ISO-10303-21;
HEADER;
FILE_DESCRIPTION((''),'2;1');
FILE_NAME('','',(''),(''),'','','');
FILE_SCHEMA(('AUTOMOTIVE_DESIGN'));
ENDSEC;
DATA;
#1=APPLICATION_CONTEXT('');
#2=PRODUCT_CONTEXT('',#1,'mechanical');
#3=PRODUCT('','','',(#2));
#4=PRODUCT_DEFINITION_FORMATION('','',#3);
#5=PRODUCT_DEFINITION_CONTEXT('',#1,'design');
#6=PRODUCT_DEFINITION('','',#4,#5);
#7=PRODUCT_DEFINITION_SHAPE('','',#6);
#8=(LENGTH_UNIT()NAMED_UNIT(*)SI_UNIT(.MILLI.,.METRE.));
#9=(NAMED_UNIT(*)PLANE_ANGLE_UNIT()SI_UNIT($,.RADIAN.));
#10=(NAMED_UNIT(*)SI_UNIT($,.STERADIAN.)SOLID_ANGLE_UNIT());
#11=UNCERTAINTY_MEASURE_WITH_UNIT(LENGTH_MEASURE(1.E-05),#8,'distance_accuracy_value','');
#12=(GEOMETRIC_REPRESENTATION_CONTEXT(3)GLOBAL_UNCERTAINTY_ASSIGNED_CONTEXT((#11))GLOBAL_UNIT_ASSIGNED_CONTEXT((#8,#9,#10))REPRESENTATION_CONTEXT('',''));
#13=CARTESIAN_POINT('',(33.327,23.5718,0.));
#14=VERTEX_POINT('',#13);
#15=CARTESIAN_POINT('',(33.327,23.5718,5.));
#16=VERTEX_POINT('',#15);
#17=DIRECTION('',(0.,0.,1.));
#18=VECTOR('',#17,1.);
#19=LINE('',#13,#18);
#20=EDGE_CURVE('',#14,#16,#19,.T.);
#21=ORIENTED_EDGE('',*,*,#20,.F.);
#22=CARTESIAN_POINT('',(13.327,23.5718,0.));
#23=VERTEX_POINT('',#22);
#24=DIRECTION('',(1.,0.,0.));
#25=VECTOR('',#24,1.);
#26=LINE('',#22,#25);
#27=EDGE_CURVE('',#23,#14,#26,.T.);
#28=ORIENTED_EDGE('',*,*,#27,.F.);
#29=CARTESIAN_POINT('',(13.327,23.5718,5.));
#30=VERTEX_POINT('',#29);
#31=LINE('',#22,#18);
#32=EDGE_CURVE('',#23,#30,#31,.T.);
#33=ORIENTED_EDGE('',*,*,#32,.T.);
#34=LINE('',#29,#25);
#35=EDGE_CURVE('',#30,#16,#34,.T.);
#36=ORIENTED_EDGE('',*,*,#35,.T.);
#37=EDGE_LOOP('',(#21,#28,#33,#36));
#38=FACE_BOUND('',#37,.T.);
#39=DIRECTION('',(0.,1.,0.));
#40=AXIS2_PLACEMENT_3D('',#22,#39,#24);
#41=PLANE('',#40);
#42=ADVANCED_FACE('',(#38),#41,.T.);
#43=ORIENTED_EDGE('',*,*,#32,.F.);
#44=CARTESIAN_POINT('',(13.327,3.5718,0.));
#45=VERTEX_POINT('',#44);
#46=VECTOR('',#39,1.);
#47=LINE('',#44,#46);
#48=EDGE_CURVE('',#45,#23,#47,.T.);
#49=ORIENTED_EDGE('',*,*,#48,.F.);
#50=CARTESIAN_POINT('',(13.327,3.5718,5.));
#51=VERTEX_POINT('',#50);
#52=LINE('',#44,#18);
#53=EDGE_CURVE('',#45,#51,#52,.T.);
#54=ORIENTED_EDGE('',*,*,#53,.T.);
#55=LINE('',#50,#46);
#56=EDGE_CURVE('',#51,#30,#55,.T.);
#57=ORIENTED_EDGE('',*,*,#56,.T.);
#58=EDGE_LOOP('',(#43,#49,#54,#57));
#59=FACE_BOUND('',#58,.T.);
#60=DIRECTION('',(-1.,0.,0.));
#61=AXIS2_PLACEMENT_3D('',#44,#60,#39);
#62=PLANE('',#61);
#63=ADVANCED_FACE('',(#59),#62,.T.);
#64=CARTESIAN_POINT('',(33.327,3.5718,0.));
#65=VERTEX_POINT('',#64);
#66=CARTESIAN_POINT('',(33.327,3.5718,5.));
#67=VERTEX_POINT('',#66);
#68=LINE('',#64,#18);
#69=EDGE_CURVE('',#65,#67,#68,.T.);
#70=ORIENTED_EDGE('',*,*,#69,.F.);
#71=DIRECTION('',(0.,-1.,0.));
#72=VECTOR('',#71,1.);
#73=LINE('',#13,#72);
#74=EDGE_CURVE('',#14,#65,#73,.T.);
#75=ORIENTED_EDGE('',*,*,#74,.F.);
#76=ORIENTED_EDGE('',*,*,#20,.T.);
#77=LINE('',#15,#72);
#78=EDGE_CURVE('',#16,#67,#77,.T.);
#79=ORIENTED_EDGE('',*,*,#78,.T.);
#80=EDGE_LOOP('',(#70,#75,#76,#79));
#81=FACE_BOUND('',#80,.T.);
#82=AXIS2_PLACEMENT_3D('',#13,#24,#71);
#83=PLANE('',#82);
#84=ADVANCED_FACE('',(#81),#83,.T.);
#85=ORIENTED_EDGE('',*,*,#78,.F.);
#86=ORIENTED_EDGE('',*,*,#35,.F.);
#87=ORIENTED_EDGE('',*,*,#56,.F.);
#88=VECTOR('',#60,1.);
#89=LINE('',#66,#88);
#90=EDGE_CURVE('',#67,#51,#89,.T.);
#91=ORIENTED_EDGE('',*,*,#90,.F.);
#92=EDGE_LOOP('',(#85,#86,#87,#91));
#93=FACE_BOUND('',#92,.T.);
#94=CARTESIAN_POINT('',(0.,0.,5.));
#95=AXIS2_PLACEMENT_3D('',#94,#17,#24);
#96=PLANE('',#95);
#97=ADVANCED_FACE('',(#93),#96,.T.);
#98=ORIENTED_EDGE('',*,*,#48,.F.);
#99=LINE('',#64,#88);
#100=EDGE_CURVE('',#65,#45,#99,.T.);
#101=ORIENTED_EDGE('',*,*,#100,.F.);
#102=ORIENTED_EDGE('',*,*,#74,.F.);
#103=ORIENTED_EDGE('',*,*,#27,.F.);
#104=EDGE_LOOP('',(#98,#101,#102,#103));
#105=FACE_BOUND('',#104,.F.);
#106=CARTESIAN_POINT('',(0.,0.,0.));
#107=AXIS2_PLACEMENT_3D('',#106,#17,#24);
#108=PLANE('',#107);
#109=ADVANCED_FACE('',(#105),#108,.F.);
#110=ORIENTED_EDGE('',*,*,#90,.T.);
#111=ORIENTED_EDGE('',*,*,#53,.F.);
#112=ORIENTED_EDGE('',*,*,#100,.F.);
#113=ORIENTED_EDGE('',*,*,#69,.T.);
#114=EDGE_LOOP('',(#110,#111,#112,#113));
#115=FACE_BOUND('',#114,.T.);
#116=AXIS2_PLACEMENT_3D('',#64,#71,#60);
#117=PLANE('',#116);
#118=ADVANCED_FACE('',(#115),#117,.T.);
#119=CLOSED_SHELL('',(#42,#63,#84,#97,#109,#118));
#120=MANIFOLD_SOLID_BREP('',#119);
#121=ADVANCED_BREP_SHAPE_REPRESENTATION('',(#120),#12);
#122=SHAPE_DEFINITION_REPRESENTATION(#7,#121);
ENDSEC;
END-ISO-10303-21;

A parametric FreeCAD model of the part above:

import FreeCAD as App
import Part
import Sketcher
Q = App.Units.Quantity

doc = App.newDocument("Part")
body = doc.addObject("PartDesign::Body", "Body")

# Sketch on XY plane
sketch1 = body.newObject("Sketcher::SketchObject", "Sketch")
sketch1.AttachmentSupport = (doc.getObject("XY_Plane"), [""])
sketch1.MapMode = "FlatFace"
sketch1.addGeometry([
    Part.LineSegment(App.Vector(33.327, 23.5718, 0), App.Vector(13.327, 23.5718, 0)),
    Part.LineSegment(App.Vector(13.327, 23.5718, 0), App.Vector(13.327, 3.5718, 0)),
    Part.LineSegment(App.Vector(13.327, 3.5718, 0), App.Vector(33.327, 3.5718, 0)),
    Part.LineSegment(App.Vector(33.327, 3.5718, 0), App.Vector(33.327, 23.5718, 0)),
], False)
sketch1.addConstraint([
    Sketcher.Constraint("Coincident", 0, 2, 1, 1),
    Sketcher.Constraint("Coincident", 1, 2, 2, 1),
    Sketcher.Constraint("Coincident", 2, 2, 3, 1),
    Sketcher.Constraint("Coincident", 3, 2, 0, 1),
    Sketcher.Constraint("Horizontal", 0),
    Sketcher.Constraint("Vertical", 1),
    Sketcher.Constraint("Horizontal", 2),
    Sketcher.Constraint("Vertical", 3),
    Sketcher.Constraint("Equal", 2, 1),
    Sketcher.Constraint("DistanceX", 0, 2, 0, 1, Q("20 mm")),
    Sketcher.Constraint("DistanceX", -1, 1, 0, 2, Q("13.327 mm")),
    Sketcher.Constraint("DistanceY", -1, 1, 0, 2, Q("23.5718 mm")),
])
pad1 = body.newObject("PartDesign::Pad", "Pad")
pad1.Profile = sketch1
pad1.Length = 5

doc.recompute()
